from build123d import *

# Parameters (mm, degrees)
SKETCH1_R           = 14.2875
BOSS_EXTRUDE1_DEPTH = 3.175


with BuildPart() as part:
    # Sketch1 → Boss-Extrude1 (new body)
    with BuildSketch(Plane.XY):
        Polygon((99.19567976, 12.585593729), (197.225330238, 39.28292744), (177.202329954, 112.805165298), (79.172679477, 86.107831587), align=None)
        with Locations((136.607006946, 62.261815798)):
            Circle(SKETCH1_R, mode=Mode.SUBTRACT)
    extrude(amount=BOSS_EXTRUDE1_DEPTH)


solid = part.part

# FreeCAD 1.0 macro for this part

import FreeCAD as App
import Part
import Sketcher
Q = App.Units.Quantity


def add_polygon(sketch, points):
    """Adds a closed chain of lines whose ends are joined by coincident constraints."""
    first, n = sketch.GeometryCount, len(points)
    for a, b in zip(points, points[1:] + points[:1]):
        sketch.addGeometry(Part.LineSegment(App.Vector(*a, 0), App.Vector(*b, 0)), False)
    for i in range(n):
        sketch.addConstraint(Sketcher.Constraint("Coincident", first + i, 2, first + (i + 1) % n, 1))

doc = App.newDocument("Part")
body = doc.addObject("PartDesign::Body", "Body")

# Sketch on XY plane
sketch1 = body.newObject("Sketcher::SketchObject", "Sketch")
sketch1.AttachmentSupport = (doc.getObject("XY_Plane"), [""])
sketch1.MapMode = "FlatFace"
add_polygon(sketch1, [(99, 13), (197, 39), (177, 113), (79, 86)])  # lines 0-3
sketch1.addGeometry(Part.Circle(App.Vector(137, 62, 0), App.Vector(0, 0, 1), 14), False)  # 4
sketch1.addConstraint([
    Sketcher.Constraint("Perpendicular", 0, 1),
    Sketcher.Constraint("Perpendicular", 1, 2),
    Sketcher.Constraint("Perpendicular", 2, 3),
    Sketcher.Constraint("Distance", 0, Q("4 in")),
    Sketcher.Constraint("Distance", 1, Q("3 in")),
    Sketcher.Constraint("Diameter", 4, Q("1.125 in")),
    Sketcher.Constraint("DistanceY", 0, 2, 2, 2, Q("1.8435002 in")),
    Sketcher.Constraint("DistanceX", -1, 1, 0, 2, Q("197.22533 mm")),
    Sketcher.Constraint("DistanceY", -1, 1, 2, 2, Q("86.107832 mm")),
    Sketcher.Constraint("DistanceY", 0, 2, 4, 3, Q("22.978888 mm")),
    Sketcher.Constraint("DistanceX", -1, 1, 4, 3, Q("136.607007 mm")),
])
pad1 = body.newObject("PartDesign::Pad", "Pad")
pad1.Profile = sketch1
pad1.Length = Q("0.125 in")

doc.recompute()
